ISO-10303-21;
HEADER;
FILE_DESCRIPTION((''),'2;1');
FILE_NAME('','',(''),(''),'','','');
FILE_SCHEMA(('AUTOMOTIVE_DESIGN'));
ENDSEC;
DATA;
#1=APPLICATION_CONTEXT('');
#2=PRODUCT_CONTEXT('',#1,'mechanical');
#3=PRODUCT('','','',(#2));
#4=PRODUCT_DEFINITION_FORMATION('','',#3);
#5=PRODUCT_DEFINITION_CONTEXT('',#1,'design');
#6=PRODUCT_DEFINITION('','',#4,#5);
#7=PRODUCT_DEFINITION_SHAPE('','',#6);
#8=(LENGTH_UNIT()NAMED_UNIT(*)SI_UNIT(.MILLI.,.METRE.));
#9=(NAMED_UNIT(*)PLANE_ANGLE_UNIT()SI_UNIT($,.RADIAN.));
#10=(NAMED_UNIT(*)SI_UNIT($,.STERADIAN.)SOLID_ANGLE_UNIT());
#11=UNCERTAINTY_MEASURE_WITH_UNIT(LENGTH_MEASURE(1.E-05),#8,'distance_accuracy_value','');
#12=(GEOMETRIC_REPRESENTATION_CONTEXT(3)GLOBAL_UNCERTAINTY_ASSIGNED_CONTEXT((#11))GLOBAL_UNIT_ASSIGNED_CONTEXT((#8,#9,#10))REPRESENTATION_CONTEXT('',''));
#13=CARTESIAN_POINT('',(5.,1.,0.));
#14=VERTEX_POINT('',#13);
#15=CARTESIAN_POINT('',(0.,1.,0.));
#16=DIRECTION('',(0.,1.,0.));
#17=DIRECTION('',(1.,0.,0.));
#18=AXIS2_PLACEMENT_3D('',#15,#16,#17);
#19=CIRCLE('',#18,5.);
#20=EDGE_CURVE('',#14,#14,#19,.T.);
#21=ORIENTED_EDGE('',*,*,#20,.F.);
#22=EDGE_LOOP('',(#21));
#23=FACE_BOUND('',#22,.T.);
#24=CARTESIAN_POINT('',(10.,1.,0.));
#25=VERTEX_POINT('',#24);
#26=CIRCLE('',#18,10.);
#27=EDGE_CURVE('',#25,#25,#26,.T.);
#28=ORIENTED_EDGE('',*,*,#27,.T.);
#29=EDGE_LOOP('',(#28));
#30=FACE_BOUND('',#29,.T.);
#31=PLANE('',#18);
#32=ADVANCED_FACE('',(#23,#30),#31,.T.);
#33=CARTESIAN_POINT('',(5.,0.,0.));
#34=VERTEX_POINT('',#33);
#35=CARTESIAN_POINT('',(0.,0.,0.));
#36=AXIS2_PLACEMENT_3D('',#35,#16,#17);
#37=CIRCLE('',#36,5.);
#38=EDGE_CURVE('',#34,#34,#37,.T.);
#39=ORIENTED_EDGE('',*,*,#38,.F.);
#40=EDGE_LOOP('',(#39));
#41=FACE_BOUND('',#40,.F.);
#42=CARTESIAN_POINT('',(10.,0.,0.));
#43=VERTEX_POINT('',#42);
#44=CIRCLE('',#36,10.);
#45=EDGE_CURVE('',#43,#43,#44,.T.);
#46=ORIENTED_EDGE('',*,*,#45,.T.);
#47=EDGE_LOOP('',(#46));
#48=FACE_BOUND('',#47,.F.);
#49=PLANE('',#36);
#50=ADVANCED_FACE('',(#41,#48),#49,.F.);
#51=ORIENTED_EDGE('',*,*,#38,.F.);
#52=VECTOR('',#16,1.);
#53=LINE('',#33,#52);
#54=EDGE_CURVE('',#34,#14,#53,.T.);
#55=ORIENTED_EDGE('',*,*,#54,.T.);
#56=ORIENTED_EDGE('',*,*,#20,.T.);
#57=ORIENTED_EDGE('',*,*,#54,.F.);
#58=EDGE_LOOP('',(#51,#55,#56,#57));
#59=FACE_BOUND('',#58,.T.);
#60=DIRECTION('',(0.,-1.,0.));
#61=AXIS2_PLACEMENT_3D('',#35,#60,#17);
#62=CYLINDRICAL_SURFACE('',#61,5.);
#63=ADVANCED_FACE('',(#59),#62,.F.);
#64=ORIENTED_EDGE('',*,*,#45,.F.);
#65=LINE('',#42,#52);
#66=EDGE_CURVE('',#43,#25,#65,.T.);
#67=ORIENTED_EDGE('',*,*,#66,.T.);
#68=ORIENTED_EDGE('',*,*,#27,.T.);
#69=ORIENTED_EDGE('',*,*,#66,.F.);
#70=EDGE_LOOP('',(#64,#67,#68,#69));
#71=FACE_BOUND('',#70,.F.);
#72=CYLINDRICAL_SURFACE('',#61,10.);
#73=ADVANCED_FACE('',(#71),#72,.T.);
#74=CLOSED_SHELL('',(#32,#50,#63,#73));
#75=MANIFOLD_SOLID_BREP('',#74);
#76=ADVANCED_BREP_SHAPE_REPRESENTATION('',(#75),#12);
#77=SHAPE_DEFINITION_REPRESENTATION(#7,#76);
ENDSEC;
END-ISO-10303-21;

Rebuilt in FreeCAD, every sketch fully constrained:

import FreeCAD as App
import Part
import Sketcher
from FreeCAD import Vector
Q = App.Units.Quantity

doc = App.newDocument("Part")
body = doc.addObject("PartDesign::Body", "Body")

# Sketch on XZ plane
sketch1 = body.newObject("Sketcher::SketchObject", "Sketch")
sketch1.AttachmentSupport = (doc.getObject("XZ_Plane"), [""])
sketch1.MapMode = "FlatFace"
sketch1.addGeometry(Part.Circle(Vector(0, 0, 0), Vector(0, 0, 1), 10), False)
sketch1.addGeometry(Part.Circle(Vector(0, 0, 0), Vector(0, 0, 1), 5), False)
sketch1.addConstraint(Sketcher.Constraint("Coincident", 0, 3, -1, 1))
sketch1.addConstraint(Sketcher.Constraint("Coincident", 1, 3, -1, 1))
sketch1.addConstraint(Sketcher.Constraint("Diameter", 0, Q("20 mm")))
sketch1.addConstraint(Sketcher.Constraint("Diameter", 1, Q("10 mm")))
pad1 = body.newObject("PartDesign::Pad", "Pad")
pad1.Profile = sketch1
pad1.Length = 1
pad1.Reversed = True

doc.recompute()
